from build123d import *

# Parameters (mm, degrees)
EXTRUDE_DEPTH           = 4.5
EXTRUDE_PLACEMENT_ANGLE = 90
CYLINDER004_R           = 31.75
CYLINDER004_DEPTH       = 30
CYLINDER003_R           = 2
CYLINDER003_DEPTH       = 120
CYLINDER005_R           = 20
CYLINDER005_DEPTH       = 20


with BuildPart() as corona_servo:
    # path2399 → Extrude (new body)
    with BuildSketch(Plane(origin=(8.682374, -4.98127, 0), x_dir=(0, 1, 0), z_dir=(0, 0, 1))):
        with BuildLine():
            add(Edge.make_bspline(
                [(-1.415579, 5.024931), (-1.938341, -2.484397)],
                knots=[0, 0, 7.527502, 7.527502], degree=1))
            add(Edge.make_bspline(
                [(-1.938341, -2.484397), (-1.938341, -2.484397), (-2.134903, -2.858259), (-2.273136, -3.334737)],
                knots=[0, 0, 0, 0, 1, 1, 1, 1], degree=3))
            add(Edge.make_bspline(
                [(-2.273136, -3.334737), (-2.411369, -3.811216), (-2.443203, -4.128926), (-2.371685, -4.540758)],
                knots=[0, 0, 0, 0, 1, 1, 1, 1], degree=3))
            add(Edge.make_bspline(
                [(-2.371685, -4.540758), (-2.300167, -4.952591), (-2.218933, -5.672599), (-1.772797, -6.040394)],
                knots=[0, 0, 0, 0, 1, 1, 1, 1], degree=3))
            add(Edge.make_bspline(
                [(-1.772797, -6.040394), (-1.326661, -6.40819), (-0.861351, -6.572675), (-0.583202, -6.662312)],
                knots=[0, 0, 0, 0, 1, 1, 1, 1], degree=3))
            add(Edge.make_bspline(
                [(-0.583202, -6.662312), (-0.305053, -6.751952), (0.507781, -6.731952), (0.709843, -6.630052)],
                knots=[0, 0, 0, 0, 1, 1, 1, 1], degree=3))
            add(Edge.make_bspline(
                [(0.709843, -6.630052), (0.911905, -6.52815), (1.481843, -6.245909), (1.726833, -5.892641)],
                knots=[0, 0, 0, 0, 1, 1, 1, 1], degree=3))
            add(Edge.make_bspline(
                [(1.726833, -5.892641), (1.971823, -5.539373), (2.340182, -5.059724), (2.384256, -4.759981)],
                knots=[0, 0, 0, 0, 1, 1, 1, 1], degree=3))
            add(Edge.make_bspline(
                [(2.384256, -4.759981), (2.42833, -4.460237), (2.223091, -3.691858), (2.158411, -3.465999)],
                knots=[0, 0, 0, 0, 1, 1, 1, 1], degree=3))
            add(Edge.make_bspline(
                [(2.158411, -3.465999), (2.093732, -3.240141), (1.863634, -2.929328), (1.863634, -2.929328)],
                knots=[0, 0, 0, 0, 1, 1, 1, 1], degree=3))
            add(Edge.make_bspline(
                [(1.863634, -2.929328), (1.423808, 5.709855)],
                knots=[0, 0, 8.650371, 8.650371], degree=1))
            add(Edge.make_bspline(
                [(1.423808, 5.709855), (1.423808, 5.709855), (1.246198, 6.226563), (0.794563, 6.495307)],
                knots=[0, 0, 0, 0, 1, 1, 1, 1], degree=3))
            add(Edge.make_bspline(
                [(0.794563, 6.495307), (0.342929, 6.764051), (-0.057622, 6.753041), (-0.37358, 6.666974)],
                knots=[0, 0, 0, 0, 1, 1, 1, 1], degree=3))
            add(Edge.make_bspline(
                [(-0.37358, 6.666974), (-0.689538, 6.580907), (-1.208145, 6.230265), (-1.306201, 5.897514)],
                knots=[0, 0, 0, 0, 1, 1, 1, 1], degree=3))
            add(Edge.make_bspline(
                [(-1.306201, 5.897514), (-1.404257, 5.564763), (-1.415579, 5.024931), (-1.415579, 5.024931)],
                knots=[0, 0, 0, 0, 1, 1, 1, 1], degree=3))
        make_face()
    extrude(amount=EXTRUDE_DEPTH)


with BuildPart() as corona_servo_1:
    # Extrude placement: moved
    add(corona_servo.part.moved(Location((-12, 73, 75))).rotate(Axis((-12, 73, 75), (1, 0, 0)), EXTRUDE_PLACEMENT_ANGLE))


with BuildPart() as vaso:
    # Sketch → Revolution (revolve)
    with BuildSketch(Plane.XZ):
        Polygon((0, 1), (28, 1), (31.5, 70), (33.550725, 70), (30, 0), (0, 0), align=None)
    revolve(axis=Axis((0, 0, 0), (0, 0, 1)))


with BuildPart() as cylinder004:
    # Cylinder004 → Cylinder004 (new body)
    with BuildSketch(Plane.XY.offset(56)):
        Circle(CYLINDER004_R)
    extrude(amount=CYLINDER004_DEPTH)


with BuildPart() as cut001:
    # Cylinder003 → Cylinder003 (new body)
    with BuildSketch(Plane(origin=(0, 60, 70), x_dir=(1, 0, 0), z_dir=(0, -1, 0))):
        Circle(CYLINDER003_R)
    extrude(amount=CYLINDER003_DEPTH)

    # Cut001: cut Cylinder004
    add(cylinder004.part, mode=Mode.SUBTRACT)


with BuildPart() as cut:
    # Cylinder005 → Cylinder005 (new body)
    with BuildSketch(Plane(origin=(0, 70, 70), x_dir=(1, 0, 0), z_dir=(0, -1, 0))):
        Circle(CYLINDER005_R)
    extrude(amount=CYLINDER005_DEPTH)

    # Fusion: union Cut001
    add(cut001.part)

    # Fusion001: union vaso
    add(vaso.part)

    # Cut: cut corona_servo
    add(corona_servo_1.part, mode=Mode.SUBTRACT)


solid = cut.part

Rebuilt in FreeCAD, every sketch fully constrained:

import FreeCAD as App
import Part
import Sketcher

V = App.Vector

doc = App.newDocument("Part")
body = doc.addObject("PartDesign::Body", "Body")

# Sketch on XY plane
sketch1 = body.newObject("Sketcher::SketchObject", "Sketch")
sketch1.AttachmentSupport = (doc.getObject("XY_Plane"), [""])
sketch1.MapMode = "FlatFace"
sketch1.addGeometry(Part.BSplineCurve([V(3.657443, -6.396849, 0), V(11.166771, -6.919611, 0)], [2, 2], [0, 7.527502], False, 1, [1, 1], False), False)
sketch1.addGeometry(Part.BSplineCurve([V(11.166771, -6.919611, 0), V(11.166771, -6.919611, 0), V(11.540633, -7.116173, 0), V(12.017111, -7.254406, 0)], [4, 4], [0, 1], False, 3, [1, 1, 1, 1], False), False)
sketch1.addGeometry(Part.BSplineCurve([V(12.017111, -7.254406, 0), V(12.49359, -7.392639, 0), V(12.8113, -7.424473, 0), V(13.223132, -7.352955, 0)], [4, 4], [0, 1], False, 3, [1, 1, 1, 1], False), False)
sketch1.addGeometry(Part.BSplineCurve([V(13.223132, -7.352955, 0), V(13.634965, -7.281437, 0), V(14.354973, -7.200203, 0), V(14.722768, -6.754067, 0)], [4, 4], [0, 1], False, 3, [1, 1, 1, 1], False), False)
sketch1.addGeometry(Part.BSplineCurve([V(14.722768, -6.754067, 0), V(15.090564, -6.307931, 0), V(15.255049, -5.842621, 0), V(15.344686, -5.564472, 0)], [4, 4], [0, 1], False, 3, [1, 1, 1, 1], False), False)
sketch1.addGeometry(Part.BSplineCurve([V(15.344686, -5.564472, 0), V(15.434326, -5.286323, 0), V(15.414326, -4.473489, 0), V(15.312426, -4.271427, 0)], [4, 4], [0, 1], False, 3, [1, 1, 1, 1], False), False)
sketch1.addGeometry(Part.BSplineCurve([V(15.312426, -4.271427, 0), V(15.210524, -4.069365, 0), V(14.928283, -3.499427, 0), V(14.575015, -3.254437, 0)], [4, 4], [0, 1], False, 3, [1, 1, 1, 1], False), False)
sketch1.addGeometry(Part.BSplineCurve([V(14.575015, -3.254437, 0), V(14.221747, -3.009447, 0), V(13.742098, -2.641088, 0), V(13.442355, -2.597014, 0)], [4, 4], [0, 1], False, 3, [1, 1, 1, 1], False), False)
sketch1.addGeometry(Part.BSplineCurve([V(13.442355, -2.597014, 0), V(13.142611, -2.55294, 0), V(12.374232, -2.758179, 0), V(12.148373, -2.822859, 0)], [4, 4], [0, 1], False, 3, [1, 1, 1, 1], False), False)
sketch1.addGeometry(Part.BSplineCurve([V(12.148373, -2.822859, 0), V(11.922515, -2.887538, 0), V(11.611702, -3.117636, 0), V(11.611702, -3.117636, 0)], [4, 4], [0, 1], False, 3, [1, 1, 1, 1], False), False)
sketch1.addGeometry(Part.BSplineCurve([V(11.611702, -3.117636, 0), V(2.972519, -3.557462, 0)], [2, 2], [0, 8.650371], False, 1, [1, 1], False), False)
sketch1.addGeometry(Part.BSplineCurve([V(2.972519, -3.557462, 0), V(2.972519, -3.557462, 0), V(2.455811, -3.735072, 0), V(2.187067, -4.186707, 0)], [4, 4], [0, 1], False, 3, [1, 1, 1, 1], False), False)
sketch1.addGeometry(Part.BSplineCurve([V(2.187067, -4.186707, 0), V(1.918323, -4.638341, 0), V(1.929333, -5.038892, 0), V(2.0154, -5.35485, 0)], [4, 4], [0, 1], False, 3, [1, 1, 1, 1], False), False)
sketch1.addGeometry(Part.BSplineCurve([V(2.0154, -5.35485, 0), V(2.101467, -5.670808, 0), V(2.452109, -6.189415, 0), V(2.78486, -6.287471, 0)], [4, 4], [0, 1], False, 3, [1, 1, 1, 1], False), False)
sketch1.addGeometry(Part.BSplineCurve([V(2.78486, -6.287471, 0), V(3.117611, -6.385527, 0), V(3.657443, -6.396849, 0), V(3.657443, -6.396849, 0)], [4, 4], [0, 1], False, 3, [1, 1, 1, 1], False), False)
sketch1.addConstraint(Sketcher.Constraint("Block", 0))
sketch1.addConstraint(Sketcher.Constraint("Block", 1))
sketch1.addConstraint(Sketcher.Constraint("Block", 2))
sketch1.addConstraint(Sketcher.Constraint("Block", 3))
sketch1.addConstraint(Sketcher.Constraint("Block", 4))
sketch1.addConstraint(Sketcher.Constraint("Block", 5))
sketch1.addConstraint(Sketcher.Constraint("Block", 6))
sketch1.addConstraint(Sketcher.Constraint("Block", 7))
sketch1.addConstraint(Sketcher.Constraint("Block", 8))
sketch1.addConstraint(Sketcher.Constraint("Block", 9))
sketch1.addConstraint(Sketcher.Constraint("Block", 10))
sketch1.addConstraint(Sketcher.Constraint("Block", 11))
sketch1.addConstraint(Sketcher.Constraint("Block", 12))
sketch1.addConstraint(Sketcher.Constraint("Block", 13))
sketch1.addConstraint(Sketcher.Constraint("Block", 14))
pad1 = body.newObject("PartDesign::Pad", "Pad")
pad1.Profile = sketch1
pad1.Length = 4.5
body2 = doc.addObject("PartDesign::Body", "Body001")
doc.recompute()

body.Placement = App.Placement(V(-12, 73, 75), App.Rotation(V(1, 0, 0), 90))
boolean = body2.newObject("PartDesign::Boolean", "Boolean")
boolean.Type = "Fuse"
boolean.addObjects([body])
body3 = doc.addObject("PartDesign::Body", "Body002")

# Sketch on XZ plane
sketch2 = body3.newObject("Sketcher::SketchObject", "Sketch001")
sketch2.AttachmentSupport = (doc.getObject("XZ_Plane002"), [""])
sketch2.MapMode = "FlatFace"
sketch2.addGeometry(Part.LineSegment(V(28, 1, 0), V(0, 1, 0)), False)
sketch2.addGeometry(Part.LineSegment(V(0, 1, 0), V(0, 0, 0)), False)
sketch2.addGeometry(Part.LineSegment(V(0, 0, 0), V(30, 0, 0)), False)
sketch2.addGeometry(Part.LineSegment(V(30, 0, 0), V(33.6, 70, 0)), False)
sketch2.addGeometry(Part.LineSegment(V(33.6, 70, 0), V(31.5, 70, 0)), False)
sketch2.addGeometry(Part.LineSegment(V(31.5, 70, 0), V(28, 1, 0)), False)
sketch2.addConstraint(Sketcher.Constraint("Coincident", 0, 2, 1, 1))
sketch2.addConstraint(Sketcher.Constraint("Coincident", 1, 2, 2, 1))
sketch2.addConstraint(Sketcher.Constraint("Coincident", 2, 2, 3, 1))
sketch2.addConstraint(Sketcher.Constraint("Coincident", 3, 2, 4, 1))
sketch2.addConstraint(Sketcher.Constraint("Coincident", 4, 2, 5, 1))
sketch2.addConstraint(Sketcher.Constraint("Coincident", 5, 2, 0, 1))
sketch2.addConstraint(Sketcher.Constraint("Horizontal", 0))
sketch2.addConstraint(Sketcher.Constraint("Vertical", 1))
sketch2.addConstraint(Sketcher.Constraint("Horizontal", 2))
sketch2.addConstraint(Sketcher.Constraint("Horizontal", 4))
sketch2.addConstraint(Sketcher.Constraint("Coincident", 1, 2, -1, 1))
sketch2.addConstraint(Sketcher.Constraint("Parallel", 3, 5))
sketch2.addConstraint(Sketcher.Constraint("DistanceX", 0, 2, 0, 1, 28.0))
sketch2.addConstraint(Sketcher.Constraint("DistanceX", 2, 1, 2, 2, 30.0))
sketch2.addConstraint(Sketcher.Constraint("DistanceY", 1, 2, 1, 1, 1.0))
sketch2.addConstraint(Sketcher.Constraint("DistanceY", -1, 1, 3, 2, 70.0))
sketch2.addConstraint(Sketcher.Constraint("DistanceX", -1, 1, 4, 2, 31.5))
revolution = body3.newObject("PartDesign::Revolution", "Revolution")
revolution.Profile = sketch2
revolution.ReferenceAxis = (sketch2, ["V_Axis"])
revolution.Angle = 360
body4 = doc.addObject("PartDesign::Body", "Body003")

# Sketch on XY plane
sketch3 = body4.newObject("Sketcher::SketchObject", "Sketch002")
sketch3.AttachmentSupport = (doc.getObject("XY_Plane003"), [""])
sketch3.MapMode = "FlatFace"
sketch3.AttachmentOffset = App.Placement(V(0, 0, 56), App.Rotation())
sketch3.addGeometry(Part.Circle(V(0, 0, 0), V(0, 0, 1), 32), False)
sketch3.addConstraint(Sketcher.Constraint("Coincident", 0, 3, -1, 1))
sketch3.addConstraint(Sketcher.Constraint("Diameter", 0, 63.5))
pad2 = body4.newObject("PartDesign::Pad", "Pad001")
pad2.Profile = sketch3
pad2.Length = 30
body5 = doc.addObject("PartDesign::Body", "Body004")
body5.AllowCompound = True

# Sketch on XZ plane
sketch4 = body5.newObject("Sketcher::SketchObject", "Sketch003")
sketch4.AttachmentSupport = (doc.getObject("XZ_Plane004"), [""])
sketch4.MapMode = "FlatFace"
sketch4.AttachmentOffset = App.Placement(V(0, 0, -60), App.Rotation())
sketch4.addGeometry(Part.Circle(V(0, 70, 0), V(0, 0, 1), 2), False)
sketch4.addConstraint(Sketcher.Constraint("PointOnObject", 0, 3, -2))
sketch4.addConstraint(Sketcher.Constraint("Diameter", 0, 4.0))
sketch4.addConstraint(Sketcher.Constraint("DistanceY", -1, 1, 0, 3, 70.0))
pad3 = body5.newObject("PartDesign::Pad", "Pad002")
pad3.Profile = sketch4
pad3.Length = 120
doc.recompute()

boolean2 = body5.newObject("PartDesign::Boolean", "Boolean001")
boolean2.Type = "Cut"
boolean2.addObjects([body4])
body6 = doc.addObject("PartDesign::Body", "Body005")
body6.AllowCompound = True

# Sketch on XZ plane
sketch5 = body6.newObject("Sketcher::SketchObject", "Sketch004")
sketch5.AttachmentSupport = (doc.getObject("XZ_Plane005"), [""])
sketch5.MapMode = "FlatFace"
sketch5.AttachmentOffset = App.Placement(V(0, 0, -70), App.Rotation())
sketch5.addGeometry(Part.Circle(V(0, 70, 0), V(0, 0, 1), 20), False)
sketch5.addConstraint(Sketcher.Constraint("PointOnObject", 0, 3, -2))
sketch5.addConstraint(Sketcher.Constraint("Diameter", 0, 40.0))
sketch5.addConstraint(Sketcher.Constraint("DistanceY", -1, 1, 0, 3, 70.0))
pad4 = body6.newObject("PartDesign::Pad", "Pad003")
pad4.Profile = sketch5
pad4.Length = 20
doc.recompute()

boolean3 = body6.newObject("PartDesign::Boolean", "Boolean002")
boolean3.Type = "Fuse"
boolean3.addObjects([body5])
doc.recompute()

boolean4 = body6.newObject("PartDesign::Boolean", "Boolean003")
boolean4.Type = "Fuse"
boolean4.addObjects([body3])
doc.recompute()

boolean5 = body6.newObject("PartDesign::Boolean", "Boolean004")
boolean5.Type = "Cut"
boolean5.addObjects([body2])

doc.recompute()
